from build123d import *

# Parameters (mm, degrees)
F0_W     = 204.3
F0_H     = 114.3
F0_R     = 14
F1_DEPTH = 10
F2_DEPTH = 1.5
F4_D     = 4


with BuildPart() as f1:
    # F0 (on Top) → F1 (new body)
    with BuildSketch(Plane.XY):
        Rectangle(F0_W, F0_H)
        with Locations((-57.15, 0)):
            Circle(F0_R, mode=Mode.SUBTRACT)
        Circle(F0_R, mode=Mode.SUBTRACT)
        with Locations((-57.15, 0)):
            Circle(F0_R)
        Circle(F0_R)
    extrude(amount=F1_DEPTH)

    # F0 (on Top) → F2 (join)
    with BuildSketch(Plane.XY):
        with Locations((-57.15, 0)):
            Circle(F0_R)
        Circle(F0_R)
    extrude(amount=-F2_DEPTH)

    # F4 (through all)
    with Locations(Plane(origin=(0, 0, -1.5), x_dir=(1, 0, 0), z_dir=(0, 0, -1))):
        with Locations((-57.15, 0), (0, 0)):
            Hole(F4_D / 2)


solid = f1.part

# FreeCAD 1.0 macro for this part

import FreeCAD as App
import Part
import Sketcher

V = App.Vector

doc = App.newDocument("Part")
params = doc.addObject("Spreadsheet::Sheet", "Params")
for row, (alias, value) in enumerate([
    ("sketch1_width", "204.3 mm"),
    ("sketch1_height", "114.3 mm"),
    ("pad1_length", "10 mm"),
    ("sketch2_diameter", "28 mm"),
    ("pad2_length", "1.5 mm"),
    ("sketch3_diameter", "4 mm"),
    ("hole_diameter", "4 mm"),
], start=1):
    params.set(f"A{row}", alias)
    params.set(f"B{row}", "=" + value)
    params.setAlias(f"B{row}", alias)

body = doc.addObject("PartDesign::Body", "Body")

sketch1 = body.newObject("Sketcher::SketchObject", "Sketch")
sketch1.AttachmentSupport = (doc.getObject("XY_Plane"), [""])
sketch1.MapMode = "FlatFace"
sketch1.addGeometry(Part.LineSegment(V(-102, 57, 0), V(-102, -57, 0)), False)
sketch1.addGeometry(Part.LineSegment(V(-102, -57, 0), V(102, -57, 0)), False)
sketch1.addGeometry(Part.LineSegment(V(102, -57, 0), V(102, 57, 0)), False)
sketch1.addGeometry(Part.LineSegment(V(102, 57, 0), V(-102, 57, 0)), False)
sketch1.addConstraint(Sketcher.Constraint("Coincident", 0, 2, 1, 1))
sketch1.addConstraint(Sketcher.Constraint("Coincident", 1, 2, 2, 1))
sketch1.addConstraint(Sketcher.Constraint("Coincident", 2, 2, 3, 1))
sketch1.addConstraint(Sketcher.Constraint("Coincident", 3, 2, 0, 1))
sketch1.addConstraint(Sketcher.Constraint("Vertical", 0))
sketch1.addConstraint(Sketcher.Constraint("Horizontal", 1))
sketch1.addConstraint(Sketcher.Constraint("Vertical", 2))
sketch1.addConstraint(Sketcher.Constraint("Horizontal", 3))
sketch1.addConstraint(Sketcher.Constraint("Symmetric", 0, 2, 2, 2, -1, 1))
sketch1.addConstraint(Sketcher.Constraint("DistanceX", 1, 1, 1, 2, 204.3))
sketch1.addConstraint(Sketcher.Constraint("DistanceY", 0, 2, 0, 1, 114.3))
sketch1.setExpression("Constraints[9]", "Params.sketch1_width")
sketch1.setExpression("Constraints[10]", "Params.sketch1_height")
pad1 = body.newObject("PartDesign::Pad", "Pad")
pad1.Profile = sketch1
pad1.setExpression("Length", "Params.pad1_length")

sketch2 = body.newObject("Sketcher::SketchObject", "Sketch001")
sketch2.AttachmentSupport = (doc.getObject("XY_Plane"), [""])
sketch2.MapMode = "FlatFace"
sketch2.addGeometry(Part.Circle(V(-57, 0, 0), V(0, 0, 1), 14), False)
sketch2.addGeometry(Part.Circle(V(0, 0, 0), V(0, 0, 1), 14), False)
sketch2.addConstraint(Sketcher.Constraint("Coincident", 1, 3, -1, 1))
sketch2.addConstraint(Sketcher.Constraint("Equal", 0, 1))
sketch2.addConstraint(Sketcher.Constraint("PointOnObject", 0, 3, -1))
sketch2.addConstraint(Sketcher.Constraint("Diameter", 0, 28.0))
sketch2.addConstraint(Sketcher.Constraint("DistanceX", 0, 3, -1, 1, 57.15))
sketch2.setExpression("Constraints[3]", "Params.sketch2_diameter")
pad2 = body.newObject("PartDesign::Pad", "Pad001")
pad2.Profile = sketch2
pad2.setExpression("Length", "Params.pad2_length")
pad2.Reversed = True

sketch3 = body.newObject("Sketcher::SketchObject", "Sketch002")
sketch3.AttachmentSupport = (doc.getObject("XY_Plane"), [""])
sketch3.MapMode = "FlatFace"
sketch3.AttachmentOffset = App.Placement(V(0, 0, -1.5), App.Rotation())
sketch3.addGeometry(Part.Circle(V(-57.1, 0, 0), V(0, 0, 1), 2), False)
sketch3.addGeometry(Part.Circle(V(0, 0, 0), V(0, 0, 1), 2), False)
sketch3.addConstraint(Sketcher.Constraint("Coincident", 1, 3, -1, 1))
sketch3.addConstraint(Sketcher.Constraint("Equal", 0, 1))
sketch3.addConstraint(Sketcher.Constraint("PointOnObject", 0, 3, -1))
sketch3.addConstraint(Sketcher.Constraint("Diameter", 0, 4.0))
sketch3.addConstraint(Sketcher.Constraint("DistanceX", 0, 3, -1, 1, 57.15))
sketch3.setExpression("Constraints[3]", "Params.sketch3_diameter")
doc.recompute()
hole = body.newObject("PartDesign::Hole", "Hole")
hole.Profile = sketch3
hole.ThreadType = "None"
hole.setExpression("Diameter", "Params.hole_diameter")
hole.DepthType = "ThroughAll"
hole.Reversed = True

doc.recompute()
